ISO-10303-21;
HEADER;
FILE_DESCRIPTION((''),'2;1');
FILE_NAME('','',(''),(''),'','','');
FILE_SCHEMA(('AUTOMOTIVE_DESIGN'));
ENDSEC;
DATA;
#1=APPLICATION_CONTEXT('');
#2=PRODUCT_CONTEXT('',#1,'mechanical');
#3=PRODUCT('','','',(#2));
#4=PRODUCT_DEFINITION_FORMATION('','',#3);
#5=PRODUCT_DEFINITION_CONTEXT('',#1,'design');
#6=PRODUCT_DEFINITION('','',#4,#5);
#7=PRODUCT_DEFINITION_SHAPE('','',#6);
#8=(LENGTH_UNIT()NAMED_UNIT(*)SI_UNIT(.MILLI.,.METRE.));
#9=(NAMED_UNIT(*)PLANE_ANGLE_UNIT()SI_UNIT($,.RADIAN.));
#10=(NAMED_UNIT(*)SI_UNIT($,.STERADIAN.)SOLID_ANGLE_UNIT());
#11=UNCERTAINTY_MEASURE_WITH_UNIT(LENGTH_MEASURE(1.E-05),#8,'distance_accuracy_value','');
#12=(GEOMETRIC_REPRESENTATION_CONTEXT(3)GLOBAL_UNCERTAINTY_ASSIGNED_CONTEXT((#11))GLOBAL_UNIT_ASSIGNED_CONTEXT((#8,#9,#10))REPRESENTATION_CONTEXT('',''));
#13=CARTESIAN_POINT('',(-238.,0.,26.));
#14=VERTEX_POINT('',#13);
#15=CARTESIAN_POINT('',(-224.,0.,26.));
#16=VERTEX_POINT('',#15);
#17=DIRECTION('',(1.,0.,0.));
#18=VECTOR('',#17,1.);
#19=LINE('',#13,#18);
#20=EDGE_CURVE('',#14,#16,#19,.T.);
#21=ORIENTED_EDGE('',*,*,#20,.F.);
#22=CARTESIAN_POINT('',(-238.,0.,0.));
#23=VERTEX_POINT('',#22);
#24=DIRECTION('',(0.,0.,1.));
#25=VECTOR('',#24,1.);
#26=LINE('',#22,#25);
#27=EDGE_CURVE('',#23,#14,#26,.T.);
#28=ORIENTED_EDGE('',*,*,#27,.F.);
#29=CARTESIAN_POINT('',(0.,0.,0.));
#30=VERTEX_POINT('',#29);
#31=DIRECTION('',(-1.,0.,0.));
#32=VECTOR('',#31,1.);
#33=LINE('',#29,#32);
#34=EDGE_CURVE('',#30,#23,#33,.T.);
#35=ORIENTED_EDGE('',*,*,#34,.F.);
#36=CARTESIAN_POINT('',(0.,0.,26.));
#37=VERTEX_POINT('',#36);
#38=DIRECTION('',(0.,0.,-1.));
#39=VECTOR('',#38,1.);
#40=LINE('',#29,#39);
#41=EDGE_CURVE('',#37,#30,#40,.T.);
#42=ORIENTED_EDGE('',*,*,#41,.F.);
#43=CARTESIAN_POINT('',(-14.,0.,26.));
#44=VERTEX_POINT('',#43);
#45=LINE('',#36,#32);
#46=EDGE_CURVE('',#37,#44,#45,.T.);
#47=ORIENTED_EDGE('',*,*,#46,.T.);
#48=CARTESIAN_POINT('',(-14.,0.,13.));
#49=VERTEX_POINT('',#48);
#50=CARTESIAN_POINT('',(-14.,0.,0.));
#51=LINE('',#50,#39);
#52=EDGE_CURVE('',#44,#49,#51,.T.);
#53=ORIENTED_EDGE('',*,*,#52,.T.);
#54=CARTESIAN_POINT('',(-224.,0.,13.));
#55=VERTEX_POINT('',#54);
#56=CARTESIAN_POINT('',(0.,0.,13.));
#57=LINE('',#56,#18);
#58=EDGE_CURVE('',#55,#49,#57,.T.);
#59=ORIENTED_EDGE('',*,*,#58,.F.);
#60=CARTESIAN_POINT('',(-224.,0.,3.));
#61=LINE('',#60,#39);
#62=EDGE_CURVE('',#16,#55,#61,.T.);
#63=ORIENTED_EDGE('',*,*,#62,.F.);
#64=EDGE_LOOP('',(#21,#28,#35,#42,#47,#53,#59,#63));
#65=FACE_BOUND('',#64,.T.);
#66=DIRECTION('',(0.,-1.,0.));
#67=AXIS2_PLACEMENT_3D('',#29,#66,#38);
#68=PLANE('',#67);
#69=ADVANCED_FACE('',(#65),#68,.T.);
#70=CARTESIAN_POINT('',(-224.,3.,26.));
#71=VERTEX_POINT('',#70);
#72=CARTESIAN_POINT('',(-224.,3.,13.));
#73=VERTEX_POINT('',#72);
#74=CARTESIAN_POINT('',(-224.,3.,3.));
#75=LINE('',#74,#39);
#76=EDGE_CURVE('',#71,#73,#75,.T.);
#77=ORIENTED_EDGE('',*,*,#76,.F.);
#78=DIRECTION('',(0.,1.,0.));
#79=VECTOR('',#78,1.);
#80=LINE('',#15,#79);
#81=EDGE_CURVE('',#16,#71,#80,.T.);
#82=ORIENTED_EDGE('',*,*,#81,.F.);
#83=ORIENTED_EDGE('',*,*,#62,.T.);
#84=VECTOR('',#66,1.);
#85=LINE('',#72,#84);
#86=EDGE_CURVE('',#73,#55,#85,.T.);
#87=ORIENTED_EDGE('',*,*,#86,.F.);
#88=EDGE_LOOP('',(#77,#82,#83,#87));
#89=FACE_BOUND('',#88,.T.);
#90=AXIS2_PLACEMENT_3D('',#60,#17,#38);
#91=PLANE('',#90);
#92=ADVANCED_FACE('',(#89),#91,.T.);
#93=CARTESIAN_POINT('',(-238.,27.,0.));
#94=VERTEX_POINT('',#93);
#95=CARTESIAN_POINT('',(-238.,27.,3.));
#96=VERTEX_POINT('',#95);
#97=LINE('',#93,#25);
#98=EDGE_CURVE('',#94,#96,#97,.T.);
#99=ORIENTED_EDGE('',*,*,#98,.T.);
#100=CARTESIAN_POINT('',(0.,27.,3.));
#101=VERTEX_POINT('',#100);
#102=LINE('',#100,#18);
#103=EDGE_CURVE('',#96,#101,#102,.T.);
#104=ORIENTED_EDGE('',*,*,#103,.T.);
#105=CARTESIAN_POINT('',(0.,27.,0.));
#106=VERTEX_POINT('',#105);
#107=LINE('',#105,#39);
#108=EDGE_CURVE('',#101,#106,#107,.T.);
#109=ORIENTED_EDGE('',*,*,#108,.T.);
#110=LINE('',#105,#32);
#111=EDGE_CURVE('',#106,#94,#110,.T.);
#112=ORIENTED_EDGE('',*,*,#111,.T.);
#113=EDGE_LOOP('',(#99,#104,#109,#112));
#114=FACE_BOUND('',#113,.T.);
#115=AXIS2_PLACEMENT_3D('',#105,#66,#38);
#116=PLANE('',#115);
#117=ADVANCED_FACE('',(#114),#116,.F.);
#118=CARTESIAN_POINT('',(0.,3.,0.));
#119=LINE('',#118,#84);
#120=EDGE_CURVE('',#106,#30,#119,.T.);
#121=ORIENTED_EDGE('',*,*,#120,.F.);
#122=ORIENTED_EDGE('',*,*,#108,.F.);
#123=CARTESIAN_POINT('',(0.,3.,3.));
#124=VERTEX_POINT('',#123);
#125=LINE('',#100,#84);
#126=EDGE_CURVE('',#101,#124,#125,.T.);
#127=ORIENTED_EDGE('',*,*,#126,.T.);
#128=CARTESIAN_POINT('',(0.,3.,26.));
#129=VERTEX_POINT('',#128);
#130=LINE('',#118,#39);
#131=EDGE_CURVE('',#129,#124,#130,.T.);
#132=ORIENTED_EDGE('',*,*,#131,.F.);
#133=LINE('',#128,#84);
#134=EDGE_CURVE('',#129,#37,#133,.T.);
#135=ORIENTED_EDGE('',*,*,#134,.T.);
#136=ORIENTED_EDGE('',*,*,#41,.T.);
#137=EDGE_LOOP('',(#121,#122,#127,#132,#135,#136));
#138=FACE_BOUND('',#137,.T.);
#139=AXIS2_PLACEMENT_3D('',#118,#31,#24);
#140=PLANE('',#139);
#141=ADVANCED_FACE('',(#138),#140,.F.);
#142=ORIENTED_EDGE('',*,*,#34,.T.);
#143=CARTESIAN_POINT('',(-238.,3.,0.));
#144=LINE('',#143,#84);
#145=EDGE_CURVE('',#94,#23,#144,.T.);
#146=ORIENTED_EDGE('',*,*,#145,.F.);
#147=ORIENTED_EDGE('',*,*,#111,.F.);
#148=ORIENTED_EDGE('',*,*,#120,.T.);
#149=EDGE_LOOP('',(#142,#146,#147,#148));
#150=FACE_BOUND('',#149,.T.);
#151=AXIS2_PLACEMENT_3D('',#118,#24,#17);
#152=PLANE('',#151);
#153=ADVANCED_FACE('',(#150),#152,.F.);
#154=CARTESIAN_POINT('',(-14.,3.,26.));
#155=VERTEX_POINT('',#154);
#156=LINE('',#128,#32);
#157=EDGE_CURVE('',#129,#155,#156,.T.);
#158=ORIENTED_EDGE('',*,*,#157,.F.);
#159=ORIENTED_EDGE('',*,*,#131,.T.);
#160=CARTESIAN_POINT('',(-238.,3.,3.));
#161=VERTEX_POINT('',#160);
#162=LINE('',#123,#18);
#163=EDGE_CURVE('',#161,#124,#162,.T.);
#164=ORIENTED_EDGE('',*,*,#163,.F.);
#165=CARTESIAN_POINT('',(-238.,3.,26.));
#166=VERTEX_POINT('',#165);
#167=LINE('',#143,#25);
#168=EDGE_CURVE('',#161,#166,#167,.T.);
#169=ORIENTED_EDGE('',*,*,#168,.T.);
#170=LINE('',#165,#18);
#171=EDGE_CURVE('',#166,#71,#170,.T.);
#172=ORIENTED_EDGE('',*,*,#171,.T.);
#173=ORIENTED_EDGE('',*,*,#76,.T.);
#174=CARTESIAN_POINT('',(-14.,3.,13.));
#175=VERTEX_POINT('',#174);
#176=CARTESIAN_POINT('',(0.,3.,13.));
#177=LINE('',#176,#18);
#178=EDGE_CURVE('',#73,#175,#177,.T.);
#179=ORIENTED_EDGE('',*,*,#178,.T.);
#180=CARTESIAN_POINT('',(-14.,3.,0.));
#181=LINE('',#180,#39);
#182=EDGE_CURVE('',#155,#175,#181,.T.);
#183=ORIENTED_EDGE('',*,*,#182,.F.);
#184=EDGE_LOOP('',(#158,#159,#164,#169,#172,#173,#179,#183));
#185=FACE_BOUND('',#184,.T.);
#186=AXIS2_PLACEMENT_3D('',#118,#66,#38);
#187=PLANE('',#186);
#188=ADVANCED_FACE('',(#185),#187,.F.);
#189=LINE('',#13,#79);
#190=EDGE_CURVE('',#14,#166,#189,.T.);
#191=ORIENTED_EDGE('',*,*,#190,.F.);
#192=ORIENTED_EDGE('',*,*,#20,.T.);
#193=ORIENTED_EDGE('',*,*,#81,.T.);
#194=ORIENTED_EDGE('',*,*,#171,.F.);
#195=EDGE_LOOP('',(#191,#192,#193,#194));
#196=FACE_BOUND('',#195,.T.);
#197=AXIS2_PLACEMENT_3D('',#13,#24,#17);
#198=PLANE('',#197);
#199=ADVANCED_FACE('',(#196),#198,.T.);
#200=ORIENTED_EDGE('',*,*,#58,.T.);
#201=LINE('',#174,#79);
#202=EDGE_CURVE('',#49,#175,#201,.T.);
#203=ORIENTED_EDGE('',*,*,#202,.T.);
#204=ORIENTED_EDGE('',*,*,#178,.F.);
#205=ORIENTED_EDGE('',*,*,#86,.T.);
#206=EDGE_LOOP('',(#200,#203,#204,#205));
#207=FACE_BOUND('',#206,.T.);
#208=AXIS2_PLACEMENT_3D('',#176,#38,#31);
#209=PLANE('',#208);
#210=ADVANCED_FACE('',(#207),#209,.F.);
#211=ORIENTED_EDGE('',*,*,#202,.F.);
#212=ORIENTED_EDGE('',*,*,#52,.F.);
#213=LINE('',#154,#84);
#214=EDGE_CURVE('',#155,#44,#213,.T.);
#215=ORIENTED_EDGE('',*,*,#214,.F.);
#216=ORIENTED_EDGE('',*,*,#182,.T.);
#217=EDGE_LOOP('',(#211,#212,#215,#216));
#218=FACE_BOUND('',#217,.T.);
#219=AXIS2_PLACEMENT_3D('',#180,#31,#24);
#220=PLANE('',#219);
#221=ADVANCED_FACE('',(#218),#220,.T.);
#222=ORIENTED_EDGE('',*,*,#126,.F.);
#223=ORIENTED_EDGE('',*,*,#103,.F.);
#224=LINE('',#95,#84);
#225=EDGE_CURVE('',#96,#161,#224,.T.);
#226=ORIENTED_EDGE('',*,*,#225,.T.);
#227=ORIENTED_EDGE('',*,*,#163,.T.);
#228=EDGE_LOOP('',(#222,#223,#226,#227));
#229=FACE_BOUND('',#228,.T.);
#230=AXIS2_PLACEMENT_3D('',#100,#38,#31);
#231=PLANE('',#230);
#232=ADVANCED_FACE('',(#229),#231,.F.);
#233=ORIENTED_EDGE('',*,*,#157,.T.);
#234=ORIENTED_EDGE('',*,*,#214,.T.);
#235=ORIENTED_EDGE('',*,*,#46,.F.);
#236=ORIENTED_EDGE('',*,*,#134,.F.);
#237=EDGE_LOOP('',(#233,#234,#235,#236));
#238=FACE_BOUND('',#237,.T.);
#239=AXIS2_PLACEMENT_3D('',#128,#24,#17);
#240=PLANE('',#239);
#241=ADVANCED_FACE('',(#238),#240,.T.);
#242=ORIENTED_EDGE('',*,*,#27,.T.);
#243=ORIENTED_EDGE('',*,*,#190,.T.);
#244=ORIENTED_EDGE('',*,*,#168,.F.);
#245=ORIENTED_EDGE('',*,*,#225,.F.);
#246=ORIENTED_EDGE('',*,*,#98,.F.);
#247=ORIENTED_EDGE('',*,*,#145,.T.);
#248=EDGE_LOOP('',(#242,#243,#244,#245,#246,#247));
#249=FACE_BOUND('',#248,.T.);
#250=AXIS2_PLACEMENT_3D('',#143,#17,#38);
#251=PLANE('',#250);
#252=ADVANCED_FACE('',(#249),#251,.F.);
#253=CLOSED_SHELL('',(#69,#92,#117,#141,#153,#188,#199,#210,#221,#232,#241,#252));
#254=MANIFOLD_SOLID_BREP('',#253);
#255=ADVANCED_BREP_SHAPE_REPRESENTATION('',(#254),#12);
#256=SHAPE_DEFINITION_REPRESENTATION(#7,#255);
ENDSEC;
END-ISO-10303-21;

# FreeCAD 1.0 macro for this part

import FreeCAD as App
import Part
import Sketcher


def add_polygon(sketch, points):
    """Adds a closed chain of lines whose ends are joined by coincident constraints."""
    first, n = sketch.GeometryCount, len(points)
    for a, b in zip(points, points[1:] + points[:1]):
        sketch.addGeometry(Part.LineSegment(App.Vector(*a, 0), App.Vector(*b, 0)), False)
    for i in range(n):
        sketch.addConstraint(Sketcher.Constraint("Coincident", first + i, 2, first + (i + 1) % n, 1))

doc = App.newDocument("Part")
body = doc.addObject("PartDesign::Body", "Body")

sketch1 = body.newObject("Sketcher::SketchObject", "Sketch")
sketch1.AttachmentSupport = (doc.getObject("XZ_Plane"), [""])
sketch1.MapMode = "FlatFace"
add_polygon(sketch1, [(-238, 0), (-238, 13), (0, 13), (0, 0)])
sketch1.addConstraint(Sketcher.Constraint("Vertical", 0))
sketch1.addConstraint(Sketcher.Constraint("Horizontal", 1))
sketch1.addConstraint(Sketcher.Constraint("Vertical", 2))
sketch1.addConstraint(Sketcher.Constraint("Horizontal", 3))
sketch1.addConstraint(Sketcher.Constraint("Coincident", 2, 2, -1, 1))
sketch1.addConstraint(Sketcher.Constraint("DistanceX", 1, 1, 1, 2, 238.0))
sketch1.addConstraint(Sketcher.Constraint("DistanceY", 0, 1, 0, 2, 13.0))
pad1 = body.newObject("PartDesign::Pad", "Pad")
pad1.Profile = sketch1
pad1.Length = 3
pad1.Reversed = True

sketch2 = body.newObject("Sketcher::SketchObject", "Sketch001")
sketch2.AttachmentSupport = (doc.getObject("XZ_Plane"), [""])
sketch2.MapMode = "FlatFace"
sketch2.AttachmentOffset = App.Placement(App.Vector(0, 0, -3), App.Rotation())
add_polygon(sketch2, [(-238, 0), (-238, 3), (0, 3), (0, 0)])
sketch2.addConstraint(Sketcher.Constraint("Vertical", 0))
sketch2.addConstraint(Sketcher.Constraint("Horizontal", 1))
sketch2.addConstraint(Sketcher.Constraint("Vertical", 2))
sketch2.addConstraint(Sketcher.Constraint("Horizontal", 3))
sketch2.addConstraint(Sketcher.Constraint("Coincident", 2, 2, -1, 1))
sketch2.addConstraint(Sketcher.Constraint("DistanceX", 1, 1, 1, 2, 238.0))
sketch2.addConstraint(Sketcher.Constraint("DistanceY", 0, 1, 0, 2, 3.0))
pad2 = body.newObject("PartDesign::Pad", "Pad001")
pad2.Profile = sketch2
pad2.Length = 24
pad2.Reversed = True

sketch3 = body.newObject("Sketcher::SketchObject", "Sketch002")
sketch3.AttachmentSupport = (doc.getObject("XZ_Plane"), [""])
sketch3.MapMode = "FlatFace"
add_polygon(sketch3, [(-14, 26), (-14, 0), (0, 0), (0, 26)])
sketch3.addConstraint(Sketcher.Constraint("Vertical", 0))
sketch3.addConstraint(Sketcher.Constraint("Horizontal", 1))
sketch3.addConstraint(Sketcher.Constraint("Vertical", 2))
sketch3.addConstraint(Sketcher.Constraint("Horizontal", 3))
sketch3.addConstraint(Sketcher.Constraint("Coincident", 1, 2, -1, 1))
sketch3.addConstraint(Sketcher.Constraint("DistanceX", 1, 1, 1, 2, 14.0))
sketch3.addConstraint(Sketcher.Constraint("DistanceY", 0, 2, 0, 1, 26.0))
pad3 = body.newObject("PartDesign::Pad", "Pad002")
pad3.Profile = sketch3
pad3.Length = 3
pad3.Reversed = True

sketch4 = body.newObject("Sketcher::SketchObject", "Sketch003")
sketch4.AttachmentSupport = (doc.getObject("XZ_Plane"), [""])
sketch4.MapMode = "FlatFace"
sketch4.AttachmentOffset = App.Placement(App.Vector(0, 0, -3), App.Rotation())
add_polygon(sketch4, [(-238, 3), (-238, 26), (-224, 26), (-224, 3)])
sketch4.addConstraint(Sketcher.Constraint("Vertical", 0))
sketch4.addConstraint(Sketcher.Constraint("Horizontal", 1))
sketch4.addConstraint(Sketcher.Constraint("Vertical", 2))
sketch4.addConstraint(Sketcher.Constraint("Horizontal", 3))
sketch4.addConstraint(Sketcher.Constraint("DistanceX", 1, 1, 1, 2, 14.0))
sketch4.addConstraint(Sketcher.Constraint("DistanceY", 0, 1, 0, 2, 23.0))
sketch4.addConstraint(Sketcher.Constraint("DistanceX", 0, 2, -1, 1, 238.0))
sketch4.addConstraint(Sketcher.Constraint("DistanceY", -1, 1, 0, 2, 26.0))
pad4 = body.newObject("PartDesign::Pad", "Pad003")
pad4.Profile = sketch4
pad4.Length = 3

doc.recompute()
